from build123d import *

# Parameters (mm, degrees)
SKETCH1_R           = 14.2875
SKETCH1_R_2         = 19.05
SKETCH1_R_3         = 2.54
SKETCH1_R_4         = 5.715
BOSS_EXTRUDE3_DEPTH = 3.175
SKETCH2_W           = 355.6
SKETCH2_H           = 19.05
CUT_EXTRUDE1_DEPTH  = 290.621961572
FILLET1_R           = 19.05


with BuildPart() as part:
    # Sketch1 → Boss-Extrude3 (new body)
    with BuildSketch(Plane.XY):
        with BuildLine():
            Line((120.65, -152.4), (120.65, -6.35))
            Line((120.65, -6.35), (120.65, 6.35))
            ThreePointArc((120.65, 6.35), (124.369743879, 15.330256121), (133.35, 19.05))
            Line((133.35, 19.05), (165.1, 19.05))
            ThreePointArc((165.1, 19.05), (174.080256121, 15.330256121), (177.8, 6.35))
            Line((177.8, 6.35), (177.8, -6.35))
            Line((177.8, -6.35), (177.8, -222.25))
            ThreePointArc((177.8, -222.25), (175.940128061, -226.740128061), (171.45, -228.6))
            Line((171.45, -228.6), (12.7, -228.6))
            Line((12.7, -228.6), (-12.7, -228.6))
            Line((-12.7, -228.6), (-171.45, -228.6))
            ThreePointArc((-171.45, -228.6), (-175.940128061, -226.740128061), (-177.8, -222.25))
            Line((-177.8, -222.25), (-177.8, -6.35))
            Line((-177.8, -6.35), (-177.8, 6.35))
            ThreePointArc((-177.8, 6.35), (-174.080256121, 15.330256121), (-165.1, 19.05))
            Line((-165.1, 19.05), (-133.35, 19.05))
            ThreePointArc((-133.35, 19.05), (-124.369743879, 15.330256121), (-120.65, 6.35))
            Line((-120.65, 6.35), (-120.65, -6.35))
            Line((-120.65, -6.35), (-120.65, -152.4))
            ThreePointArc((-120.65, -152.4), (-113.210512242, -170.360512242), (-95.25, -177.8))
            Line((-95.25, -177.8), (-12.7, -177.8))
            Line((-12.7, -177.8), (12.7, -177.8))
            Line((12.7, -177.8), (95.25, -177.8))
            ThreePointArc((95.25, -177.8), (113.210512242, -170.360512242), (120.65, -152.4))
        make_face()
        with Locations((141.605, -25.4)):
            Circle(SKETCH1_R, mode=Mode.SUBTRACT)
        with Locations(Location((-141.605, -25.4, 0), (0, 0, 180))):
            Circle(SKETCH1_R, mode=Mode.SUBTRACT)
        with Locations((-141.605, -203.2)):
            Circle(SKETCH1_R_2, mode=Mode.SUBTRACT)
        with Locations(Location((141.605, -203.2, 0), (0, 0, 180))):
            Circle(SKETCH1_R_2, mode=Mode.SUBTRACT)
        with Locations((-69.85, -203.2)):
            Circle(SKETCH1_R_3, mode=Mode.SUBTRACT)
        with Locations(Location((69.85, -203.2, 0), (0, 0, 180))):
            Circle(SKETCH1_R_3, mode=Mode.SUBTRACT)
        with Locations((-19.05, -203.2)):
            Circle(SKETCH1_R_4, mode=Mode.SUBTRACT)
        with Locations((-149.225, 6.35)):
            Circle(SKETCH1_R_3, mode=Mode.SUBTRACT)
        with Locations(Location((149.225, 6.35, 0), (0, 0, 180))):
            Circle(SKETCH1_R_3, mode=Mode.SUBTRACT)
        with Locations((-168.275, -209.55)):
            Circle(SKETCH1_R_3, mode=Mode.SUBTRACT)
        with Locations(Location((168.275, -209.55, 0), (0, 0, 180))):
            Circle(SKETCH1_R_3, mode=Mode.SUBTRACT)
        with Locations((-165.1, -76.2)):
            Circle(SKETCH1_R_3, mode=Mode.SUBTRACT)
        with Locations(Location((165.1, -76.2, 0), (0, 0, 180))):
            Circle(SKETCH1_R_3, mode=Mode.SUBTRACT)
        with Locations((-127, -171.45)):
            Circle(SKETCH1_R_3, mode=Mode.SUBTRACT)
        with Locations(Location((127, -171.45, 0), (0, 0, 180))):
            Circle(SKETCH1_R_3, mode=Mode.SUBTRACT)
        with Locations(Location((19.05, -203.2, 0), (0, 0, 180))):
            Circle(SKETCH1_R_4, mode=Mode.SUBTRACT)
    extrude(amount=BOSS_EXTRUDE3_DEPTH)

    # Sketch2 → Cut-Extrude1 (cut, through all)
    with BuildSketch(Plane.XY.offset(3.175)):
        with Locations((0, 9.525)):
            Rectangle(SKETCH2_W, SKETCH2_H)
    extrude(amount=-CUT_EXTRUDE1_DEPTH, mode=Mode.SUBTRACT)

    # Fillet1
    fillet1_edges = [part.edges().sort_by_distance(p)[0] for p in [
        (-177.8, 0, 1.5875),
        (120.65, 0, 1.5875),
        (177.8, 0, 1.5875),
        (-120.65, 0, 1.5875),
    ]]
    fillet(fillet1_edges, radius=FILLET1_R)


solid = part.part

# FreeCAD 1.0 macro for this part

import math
import FreeCAD as App
import Part
import Sketcher

V = App.Vector
Q = App.Units.Quantity


def edges_at(feature, points):
    """Names of the edges that pass closest to the given points."""
    edges = feature.Shape.Edges
    near = lambda p: min(range(len(edges)), key=lambda i: edges[i].distToShape(Part.Vertex(*p))[0])
    return sorted({f"Edge{near(p) + 1}" for p in points})


def add_polygon(sketch, points):
    """Adds a closed chain of lines whose ends are joined by coincident constraints."""
    first, n = sketch.GeometryCount, len(points)
    for a, b in zip(points, points[1:] + points[:1]):
        sketch.addGeometry(Part.LineSegment(App.Vector(*a, 0), App.Vector(*b, 0)), False)
    for i in range(n):
        sketch.addConstraint(Sketcher.Constraint("Coincident", first + i, 2, first + (i + 1) % n, 1))

doc = App.newDocument("Part")
body = doc.addObject("PartDesign::Body", "Body")

# Sketch on XY plane
sketch1 = doc.addObject("Sketcher::SketchObject", "Sketch")
body.addObject(sketch1)
sketch1.AttachmentSupport = (doc.XY_Plane, [""])
sketch1.MapMode = "FlatFace"
sketch1.addGeometry(Part.LineSegment(V(120.7, 6.3, 0), V(120.7, -152.4, 0)), False)
sketch1.addGeometry(Part.ArcOfCircle(Part.Circle(V(95.2, -152.4, 0), V(0, 0, 1), 25.4), math.radians(-90), math.radians(0)), False)
sketch1.addGeometry(Part.LineSegment(V(95.2, -177.8, 0), V(-95.2, -177.8, 0)), False)
sketch1.addGeometry(Part.ArcOfCircle(Part.Circle(V(-95.2, -152.4, 0), V(0, 0, 1), 25.4), math.radians(180), math.radians(270)), False)
sketch1.addGeometry(Part.LineSegment(V(-120.7, -152.4, 0), V(-120.7, 6.3, 0)), False)
sketch1.addGeometry(Part.ArcOfCircle(Part.Circle(V(-133.3, 6.3, 0), V(0, 0, 1), 12.7), math.radians(0), math.radians(90)), False)
sketch1.addGeometry(Part.LineSegment(V(-133.3, 19.1, 0), V(-165.1, 19.1, 0)), False)
sketch1.addGeometry(Part.ArcOfCircle(Part.Circle(V(-165.1, 6.3, 0), V(0, 0, 1), 12.7), math.radians(90), math.radians(180)), False)
sketch1.addGeometry(Part.LineSegment(V(-177.8, 6.3, 0), V(-177.8, -222.2, 0)), False)
sketch1.addGeometry(Part.ArcOfCircle(Part.Circle(V(-171.5, -222.3, 0), V(0, 0, 1), 6.3), math.radians(180), math.radians(270)), False)
sketch1.addGeometry(Part.LineSegment(V(-171.4, -228.6, 0), V(171.4, -228.6, 0)), False)
sketch1.addGeometry(Part.ArcOfCircle(Part.Circle(V(171.5, -222.3, 0), V(0, 0, 1), 6.3), math.radians(-90), math.radians(0)), False)
sketch1.addGeometry(Part.LineSegment(V(177.8, -222.2, 0), V(177.8, 6.3, 0)), False)
sketch1.addGeometry(Part.ArcOfCircle(Part.Circle(V(165.1, 6.3, 0), V(0, 0, 1), 12.7), math.radians(0), math.radians(90)), False)
sketch1.addGeometry(Part.LineSegment(V(165.1, 19.1, 0), V(133.3, 19.1, 0)), False)
sketch1.addGeometry(Part.ArcOfCircle(Part.Circle(V(133.3, 6.3, 0), V(0, 0, 1), 12.7), math.radians(90), math.radians(180)), False)
sketch1.addGeometry(Part.Circle(V(168.3, -209.6, 0), V(0, 0, 1), 2.5), False)
sketch1.addGeometry(Part.Circle(V(141.6, -203.2, 0), V(0, 0, 1), 19.1), False)
sketch1.addGeometry(Part.Circle(V(127, -171.4, 0), V(0, 0, 1), 2.5), False)
sketch1.addGeometry(Part.Circle(V(69.8, -203.2, 0), V(0, 0, 1), 2.5), False)
sketch1.addGeometry(Part.Circle(V(19.1, -203.2, 0), V(0, 0, 1), 5.7), False)
sketch1.addGeometry(Part.Circle(V(-19.1, -203.2, 0), V(0, 0, 1), 5.7), False)
sketch1.addGeometry(Part.Circle(V(-69.8, -203.2, 0), V(0, 0, 1), 2.5), False)
sketch1.addGeometry(Part.Circle(V(-168.3, -209.6, 0), V(0, 0, 1), 2.5), False)
sketch1.addGeometry(Part.Circle(V(-141.6, -203.2, 0), V(0, 0, 1), 19.1), False)
sketch1.addGeometry(Part.Circle(V(-127, -171.4, 0), V(0, 0, 1), 2.5), False)
sketch1.addGeometry(Part.Circle(V(165.1, -76.2, 0), V(0, 0, 1), 2.5), False)
sketch1.addGeometry(Part.Circle(V(141.6, -25.4, 0), V(0, 0, 1), 14.3), False)
sketch1.addGeometry(Part.Circle(V(149.2, 6.3, 0), V(0, 0, 1), 2.5), False)
sketch1.addGeometry(Part.Circle(V(-165.1, -76.2, 0), V(0, 0, 1), 2.5), False)
sketch1.addGeometry(Part.Circle(V(-141.6, -25.4, 0), V(0, 0, 1), 14.3), False)
sketch1.addGeometry(Part.Circle(V(-149.2, 6.3, 0), V(0, 0, 1), 2.5), False)
sketch1.addConstraint(Sketcher.Constraint("Tangent", 0, 2, 1, 2))
sketch1.addConstraint(Sketcher.Constraint("Tangent", 1, 1, 2, 1))
sketch1.addConstraint(Sketcher.Constraint("Tangent", 2, 2, 3, 2))
sketch1.addConstraint(Sketcher.Constraint("Tangent", 3, 1, 4, 1))
sketch1.addConstraint(Sketcher.Constraint("Tangent", 4, 2, 5, 1))
sketch1.addConstraint(Sketcher.Constraint("Tangent", 5, 2, 6, 1))
sketch1.addConstraint(Sketcher.Constraint("Tangent", 6, 2, 7, 1))
sketch1.addConstraint(Sketcher.Constraint("Tangent", 7, 2, 8, 1))
sketch1.addConstraint(Sketcher.Constraint("Tangent", 8, 2, 9, 1))
sketch1.addConstraint(Sketcher.Constraint("Tangent", 9, 2, 10, 1))
sketch1.addConstraint(Sketcher.Constraint("Tangent", 10, 2, 11, 1))
sketch1.addConstraint(Sketcher.Constraint("Tangent", 11, 2, 12, 1))
sketch1.addConstraint(Sketcher.Constraint("Tangent", 12, 2, 13, 1))
sketch1.addConstraint(Sketcher.Constraint("Tangent", 13, 2, 14, 1))
sketch1.addConstraint(Sketcher.Constraint("Tangent", 14, 2, 15, 1))
sketch1.addConstraint(Sketcher.Constraint("Tangent", 15, 2, 0, 1))
sketch1.addConstraint(Sketcher.Constraint("Vertical", 0))
sketch1.addConstraint(Sketcher.Constraint("Horizontal", 2))
sketch1.addConstraint(Sketcher.Constraint("Vertical", 4))
sketch1.addConstraint(Sketcher.Constraint("Horizontal", 6))
sketch1.addConstraint(Sketcher.Constraint("Vertical", 8))
sketch1.addConstraint(Sketcher.Constraint("Horizontal", 10))
sketch1.addConstraint(Sketcher.Constraint("Vertical", 12))
sketch1.addConstraint(Sketcher.Constraint("Horizontal", 14))
sketch1.addConstraint(Sketcher.Constraint("Equal", 1, 3))
sketch1.addConstraint(Sketcher.Constraint("Equal", 5, 7))
sketch1.addConstraint(Sketcher.Constraint("Equal", 9, 11))
sketch1.addConstraint(Sketcher.Constraint("Equal", 7, 13))
sketch1.addConstraint(Sketcher.Constraint("Equal", 13, 15))
sketch1.addConstraint(Sketcher.Constraint("Equal", 16, 18))
sketch1.addConstraint(Sketcher.Constraint("Equal", 18, 19))
sketch1.addConstraint(Sketcher.Constraint("Equal", 20, 21))
sketch1.addConstraint(Sketcher.Constraint("Equal", 19, 22))
sketch1.addConstraint(Sketcher.Constraint("Equal", 22, 23))
sketch1.addConstraint(Sketcher.Constraint("Equal", 17, 24))
sketch1.addConstraint(Sketcher.Constraint("Equal", 23, 25))
sketch1.addConstraint(Sketcher.Constraint("Equal", 25, 26))
sketch1.addConstraint(Sketcher.Constraint("Equal", 26, 28))
sketch1.addConstraint(Sketcher.Constraint("Equal", 28, 29))
sketch1.addConstraint(Sketcher.Constraint("Equal", 27, 30))
sketch1.addConstraint(Sketcher.Constraint("Equal", 29, 31))
sketch1.addConstraint(Sketcher.Constraint("Symmetric", 7, 3, 13, 3, -2))
sketch1.addConstraint(Sketcher.Constraint("Symmetric", 20, 3, 21, 3, -2))
sketch1.addConstraint(Sketcher.Constraint("Symmetric", 19, 3, 22, 3, -2))
sketch1.addConstraint(Sketcher.Constraint("Symmetric", 16, 3, 23, 3, -2))
sketch1.addConstraint(Sketcher.Constraint("Symmetric", 17, 3, 24, 3, -2))
sketch1.addConstraint(Sketcher.Constraint("Symmetric", 18, 3, 25, 3, -2))
sketch1.addConstraint(Sketcher.Constraint("Symmetric", 26, 3, 29, 3, -2))
sketch1.addConstraint(Sketcher.Constraint("Symmetric", 27, 3, 30, 3, -2))
sketch1.addConstraint(Sketcher.Constraint("Symmetric", 28, 3, 31, 3, -2))
sketch1.addConstraint(Sketcher.Constraint("Horizontal", 17, 3, 19, 3))
sketch1.addConstraint(Sketcher.Constraint("Horizontal", 19, 3, 20, 3))
sketch1.addConstraint(Sketcher.Constraint("Horizontal", 15, 3, 28, 3))
sketch1.addConstraint(Sketcher.Constraint("Vertical", 13, 3, 26, 3))
sketch1.addConstraint(Sketcher.Constraint("Vertical", 17, 3, 27, 3))
sketch1.addConstraint(Sketcher.Constraint("Equal", 6, 14))
sketch1.addConstraint(Sketcher.Constraint("Radius", 1, Q("1 in")))
sketch1.addConstraint(Sketcher.Constraint("Diameter", 16, Q("0.2 in")))
sketch1.addConstraint(Sketcher.Constraint("Diameter", 17, Q("1.5 in")))
sketch1.addConstraint(Sketcher.Constraint("Radius", 5, Q("0.5 in")))
sketch1.addConstraint(Sketcher.Constraint("Diameter", 20, Q("0.45 in")))
sketch1.addConstraint(Sketcher.Constraint("DistanceY", 8, 2, 8, 1, Q("9 in")))
sketch1.addConstraint(Sketcher.Constraint("Radius", 9, Q("0.25 in")))
sketch1.addConstraint(Sketcher.Constraint("Diameter", 27, Q("1.125 in")))
sketch1.addConstraint(Sketcher.Constraint("DistanceX", 2, 2, 2, 1, Q("7.5 in")))
sketch1.addConstraint(Sketcher.Constraint("DistanceX", 10, 1, 10, 2, Q("13.5 in")))
sketch1.addConstraint(Sketcher.Constraint("DistanceY", 1, 3, -1, 1, Q("6 in")))
sketch1.addConstraint(Sketcher.Constraint("DistanceY", 17, 3, -1, 1, Q("8 in")))
sketch1.addConstraint(Sketcher.Constraint("DistanceX", -1, 1, 18, 3, Q("5 in")))
sketch1.addConstraint(Sketcher.Constraint("DistanceY", 26, 3, -1, 1, Q("3 in")))
sketch1.addConstraint(Sketcher.Constraint("DistanceY", 27, 3, -1, 1, Q("1 in")))
sketch1.addConstraint(Sketcher.Constraint("DistanceY", 9, 2, -1, 1, Q("9 in")))
sketch1.addConstraint(Sketcher.Constraint("DistanceY", 11, 3, 18, 3, Q("2 in")))
sketch1.addConstraint(Sketcher.Constraint("DistanceX", 19, 3, 1, 3, Q("1 in")))
sketch1.addConstraint(Sketcher.Constraint("DistanceX", 20, 3, 19, 3, Q("2 in")))
sketch1.addConstraint(Sketcher.Constraint("DistanceY", 11, 3, 16, 3, Q("0.5 in")))
sketch1.addConstraint(Sketcher.Constraint("DistanceX", 27, 3, 28, 3, Q("0.3 in")))
sketch1.addConstraint(Sketcher.Constraint("DistanceX", 17, 3, 16, 3, Q("1.05 in")))
sketch1.addConstraint(Sketcher.Constraint("DistanceX", -1, 1, 16, 3, Q("6.625 in")))
pad1 = doc.addObject("PartDesign::Pad", "Pad")
body.addObject(pad1)
pad1.Profile = sketch1
pad1.Length = Q("0.125 in")

# Sketch on XY plane
sketch2 = doc.addObject("Sketcher::SketchObject", "Sketch001")
body.addObject(sketch2)
sketch2.AttachmentSupport = (doc.XY_Plane, [""])
sketch2.MapMode = "FlatFace"
sketch2.AttachmentOffset = App.Placement(V(0, 0, 0.125 * 25.4), App.Rotation())
add_polygon(sketch2, [(-178, 19), (-178, 0), (178, 0), (178, 19)])  # lines 0-3
sketch2.addConstraint(Sketcher.Constraint("Vertical", 0))
sketch2.addConstraint(Sketcher.Constraint("Horizontal", 1))
sketch2.addConstraint(Sketcher.Constraint("Vertical", 2))
sketch2.addConstraint(Sketcher.Constraint("Horizontal", 3))
sketch2.addConstraint(Sketcher.Constraint("Symmetric", 0, 2, 1, 2, -1, 1))
sketch2.addConstraint(Sketcher.Constraint("DistanceX", 1, 1, 1, 2, Q("14 in")))
sketch2.addConstraint(Sketcher.Constraint("DistanceY", 0, 2, 0, 1, Q("0.75 in")))
pocket1 = doc.addObject("PartDesign::Pocket", "Pocket")
body.addObject(pocket1)
pocket1.Profile = sketch2
pocket1.Type = "ThroughAll"
doc.recompute()

fillet = doc.addObject("PartDesign::Fillet", "Fillet")
body.addObject(fillet)
fillet.Base = (pocket1, edges_at(pocket1, [
    (-177.8, 0, 1.587),
    (120.65, 0, 1.587),
    (177.8, 0, 1.587),
    (-120.65, 0, 1.587),
]))
fillet.Radius = Q("0.75 in")

doc.recompute()
